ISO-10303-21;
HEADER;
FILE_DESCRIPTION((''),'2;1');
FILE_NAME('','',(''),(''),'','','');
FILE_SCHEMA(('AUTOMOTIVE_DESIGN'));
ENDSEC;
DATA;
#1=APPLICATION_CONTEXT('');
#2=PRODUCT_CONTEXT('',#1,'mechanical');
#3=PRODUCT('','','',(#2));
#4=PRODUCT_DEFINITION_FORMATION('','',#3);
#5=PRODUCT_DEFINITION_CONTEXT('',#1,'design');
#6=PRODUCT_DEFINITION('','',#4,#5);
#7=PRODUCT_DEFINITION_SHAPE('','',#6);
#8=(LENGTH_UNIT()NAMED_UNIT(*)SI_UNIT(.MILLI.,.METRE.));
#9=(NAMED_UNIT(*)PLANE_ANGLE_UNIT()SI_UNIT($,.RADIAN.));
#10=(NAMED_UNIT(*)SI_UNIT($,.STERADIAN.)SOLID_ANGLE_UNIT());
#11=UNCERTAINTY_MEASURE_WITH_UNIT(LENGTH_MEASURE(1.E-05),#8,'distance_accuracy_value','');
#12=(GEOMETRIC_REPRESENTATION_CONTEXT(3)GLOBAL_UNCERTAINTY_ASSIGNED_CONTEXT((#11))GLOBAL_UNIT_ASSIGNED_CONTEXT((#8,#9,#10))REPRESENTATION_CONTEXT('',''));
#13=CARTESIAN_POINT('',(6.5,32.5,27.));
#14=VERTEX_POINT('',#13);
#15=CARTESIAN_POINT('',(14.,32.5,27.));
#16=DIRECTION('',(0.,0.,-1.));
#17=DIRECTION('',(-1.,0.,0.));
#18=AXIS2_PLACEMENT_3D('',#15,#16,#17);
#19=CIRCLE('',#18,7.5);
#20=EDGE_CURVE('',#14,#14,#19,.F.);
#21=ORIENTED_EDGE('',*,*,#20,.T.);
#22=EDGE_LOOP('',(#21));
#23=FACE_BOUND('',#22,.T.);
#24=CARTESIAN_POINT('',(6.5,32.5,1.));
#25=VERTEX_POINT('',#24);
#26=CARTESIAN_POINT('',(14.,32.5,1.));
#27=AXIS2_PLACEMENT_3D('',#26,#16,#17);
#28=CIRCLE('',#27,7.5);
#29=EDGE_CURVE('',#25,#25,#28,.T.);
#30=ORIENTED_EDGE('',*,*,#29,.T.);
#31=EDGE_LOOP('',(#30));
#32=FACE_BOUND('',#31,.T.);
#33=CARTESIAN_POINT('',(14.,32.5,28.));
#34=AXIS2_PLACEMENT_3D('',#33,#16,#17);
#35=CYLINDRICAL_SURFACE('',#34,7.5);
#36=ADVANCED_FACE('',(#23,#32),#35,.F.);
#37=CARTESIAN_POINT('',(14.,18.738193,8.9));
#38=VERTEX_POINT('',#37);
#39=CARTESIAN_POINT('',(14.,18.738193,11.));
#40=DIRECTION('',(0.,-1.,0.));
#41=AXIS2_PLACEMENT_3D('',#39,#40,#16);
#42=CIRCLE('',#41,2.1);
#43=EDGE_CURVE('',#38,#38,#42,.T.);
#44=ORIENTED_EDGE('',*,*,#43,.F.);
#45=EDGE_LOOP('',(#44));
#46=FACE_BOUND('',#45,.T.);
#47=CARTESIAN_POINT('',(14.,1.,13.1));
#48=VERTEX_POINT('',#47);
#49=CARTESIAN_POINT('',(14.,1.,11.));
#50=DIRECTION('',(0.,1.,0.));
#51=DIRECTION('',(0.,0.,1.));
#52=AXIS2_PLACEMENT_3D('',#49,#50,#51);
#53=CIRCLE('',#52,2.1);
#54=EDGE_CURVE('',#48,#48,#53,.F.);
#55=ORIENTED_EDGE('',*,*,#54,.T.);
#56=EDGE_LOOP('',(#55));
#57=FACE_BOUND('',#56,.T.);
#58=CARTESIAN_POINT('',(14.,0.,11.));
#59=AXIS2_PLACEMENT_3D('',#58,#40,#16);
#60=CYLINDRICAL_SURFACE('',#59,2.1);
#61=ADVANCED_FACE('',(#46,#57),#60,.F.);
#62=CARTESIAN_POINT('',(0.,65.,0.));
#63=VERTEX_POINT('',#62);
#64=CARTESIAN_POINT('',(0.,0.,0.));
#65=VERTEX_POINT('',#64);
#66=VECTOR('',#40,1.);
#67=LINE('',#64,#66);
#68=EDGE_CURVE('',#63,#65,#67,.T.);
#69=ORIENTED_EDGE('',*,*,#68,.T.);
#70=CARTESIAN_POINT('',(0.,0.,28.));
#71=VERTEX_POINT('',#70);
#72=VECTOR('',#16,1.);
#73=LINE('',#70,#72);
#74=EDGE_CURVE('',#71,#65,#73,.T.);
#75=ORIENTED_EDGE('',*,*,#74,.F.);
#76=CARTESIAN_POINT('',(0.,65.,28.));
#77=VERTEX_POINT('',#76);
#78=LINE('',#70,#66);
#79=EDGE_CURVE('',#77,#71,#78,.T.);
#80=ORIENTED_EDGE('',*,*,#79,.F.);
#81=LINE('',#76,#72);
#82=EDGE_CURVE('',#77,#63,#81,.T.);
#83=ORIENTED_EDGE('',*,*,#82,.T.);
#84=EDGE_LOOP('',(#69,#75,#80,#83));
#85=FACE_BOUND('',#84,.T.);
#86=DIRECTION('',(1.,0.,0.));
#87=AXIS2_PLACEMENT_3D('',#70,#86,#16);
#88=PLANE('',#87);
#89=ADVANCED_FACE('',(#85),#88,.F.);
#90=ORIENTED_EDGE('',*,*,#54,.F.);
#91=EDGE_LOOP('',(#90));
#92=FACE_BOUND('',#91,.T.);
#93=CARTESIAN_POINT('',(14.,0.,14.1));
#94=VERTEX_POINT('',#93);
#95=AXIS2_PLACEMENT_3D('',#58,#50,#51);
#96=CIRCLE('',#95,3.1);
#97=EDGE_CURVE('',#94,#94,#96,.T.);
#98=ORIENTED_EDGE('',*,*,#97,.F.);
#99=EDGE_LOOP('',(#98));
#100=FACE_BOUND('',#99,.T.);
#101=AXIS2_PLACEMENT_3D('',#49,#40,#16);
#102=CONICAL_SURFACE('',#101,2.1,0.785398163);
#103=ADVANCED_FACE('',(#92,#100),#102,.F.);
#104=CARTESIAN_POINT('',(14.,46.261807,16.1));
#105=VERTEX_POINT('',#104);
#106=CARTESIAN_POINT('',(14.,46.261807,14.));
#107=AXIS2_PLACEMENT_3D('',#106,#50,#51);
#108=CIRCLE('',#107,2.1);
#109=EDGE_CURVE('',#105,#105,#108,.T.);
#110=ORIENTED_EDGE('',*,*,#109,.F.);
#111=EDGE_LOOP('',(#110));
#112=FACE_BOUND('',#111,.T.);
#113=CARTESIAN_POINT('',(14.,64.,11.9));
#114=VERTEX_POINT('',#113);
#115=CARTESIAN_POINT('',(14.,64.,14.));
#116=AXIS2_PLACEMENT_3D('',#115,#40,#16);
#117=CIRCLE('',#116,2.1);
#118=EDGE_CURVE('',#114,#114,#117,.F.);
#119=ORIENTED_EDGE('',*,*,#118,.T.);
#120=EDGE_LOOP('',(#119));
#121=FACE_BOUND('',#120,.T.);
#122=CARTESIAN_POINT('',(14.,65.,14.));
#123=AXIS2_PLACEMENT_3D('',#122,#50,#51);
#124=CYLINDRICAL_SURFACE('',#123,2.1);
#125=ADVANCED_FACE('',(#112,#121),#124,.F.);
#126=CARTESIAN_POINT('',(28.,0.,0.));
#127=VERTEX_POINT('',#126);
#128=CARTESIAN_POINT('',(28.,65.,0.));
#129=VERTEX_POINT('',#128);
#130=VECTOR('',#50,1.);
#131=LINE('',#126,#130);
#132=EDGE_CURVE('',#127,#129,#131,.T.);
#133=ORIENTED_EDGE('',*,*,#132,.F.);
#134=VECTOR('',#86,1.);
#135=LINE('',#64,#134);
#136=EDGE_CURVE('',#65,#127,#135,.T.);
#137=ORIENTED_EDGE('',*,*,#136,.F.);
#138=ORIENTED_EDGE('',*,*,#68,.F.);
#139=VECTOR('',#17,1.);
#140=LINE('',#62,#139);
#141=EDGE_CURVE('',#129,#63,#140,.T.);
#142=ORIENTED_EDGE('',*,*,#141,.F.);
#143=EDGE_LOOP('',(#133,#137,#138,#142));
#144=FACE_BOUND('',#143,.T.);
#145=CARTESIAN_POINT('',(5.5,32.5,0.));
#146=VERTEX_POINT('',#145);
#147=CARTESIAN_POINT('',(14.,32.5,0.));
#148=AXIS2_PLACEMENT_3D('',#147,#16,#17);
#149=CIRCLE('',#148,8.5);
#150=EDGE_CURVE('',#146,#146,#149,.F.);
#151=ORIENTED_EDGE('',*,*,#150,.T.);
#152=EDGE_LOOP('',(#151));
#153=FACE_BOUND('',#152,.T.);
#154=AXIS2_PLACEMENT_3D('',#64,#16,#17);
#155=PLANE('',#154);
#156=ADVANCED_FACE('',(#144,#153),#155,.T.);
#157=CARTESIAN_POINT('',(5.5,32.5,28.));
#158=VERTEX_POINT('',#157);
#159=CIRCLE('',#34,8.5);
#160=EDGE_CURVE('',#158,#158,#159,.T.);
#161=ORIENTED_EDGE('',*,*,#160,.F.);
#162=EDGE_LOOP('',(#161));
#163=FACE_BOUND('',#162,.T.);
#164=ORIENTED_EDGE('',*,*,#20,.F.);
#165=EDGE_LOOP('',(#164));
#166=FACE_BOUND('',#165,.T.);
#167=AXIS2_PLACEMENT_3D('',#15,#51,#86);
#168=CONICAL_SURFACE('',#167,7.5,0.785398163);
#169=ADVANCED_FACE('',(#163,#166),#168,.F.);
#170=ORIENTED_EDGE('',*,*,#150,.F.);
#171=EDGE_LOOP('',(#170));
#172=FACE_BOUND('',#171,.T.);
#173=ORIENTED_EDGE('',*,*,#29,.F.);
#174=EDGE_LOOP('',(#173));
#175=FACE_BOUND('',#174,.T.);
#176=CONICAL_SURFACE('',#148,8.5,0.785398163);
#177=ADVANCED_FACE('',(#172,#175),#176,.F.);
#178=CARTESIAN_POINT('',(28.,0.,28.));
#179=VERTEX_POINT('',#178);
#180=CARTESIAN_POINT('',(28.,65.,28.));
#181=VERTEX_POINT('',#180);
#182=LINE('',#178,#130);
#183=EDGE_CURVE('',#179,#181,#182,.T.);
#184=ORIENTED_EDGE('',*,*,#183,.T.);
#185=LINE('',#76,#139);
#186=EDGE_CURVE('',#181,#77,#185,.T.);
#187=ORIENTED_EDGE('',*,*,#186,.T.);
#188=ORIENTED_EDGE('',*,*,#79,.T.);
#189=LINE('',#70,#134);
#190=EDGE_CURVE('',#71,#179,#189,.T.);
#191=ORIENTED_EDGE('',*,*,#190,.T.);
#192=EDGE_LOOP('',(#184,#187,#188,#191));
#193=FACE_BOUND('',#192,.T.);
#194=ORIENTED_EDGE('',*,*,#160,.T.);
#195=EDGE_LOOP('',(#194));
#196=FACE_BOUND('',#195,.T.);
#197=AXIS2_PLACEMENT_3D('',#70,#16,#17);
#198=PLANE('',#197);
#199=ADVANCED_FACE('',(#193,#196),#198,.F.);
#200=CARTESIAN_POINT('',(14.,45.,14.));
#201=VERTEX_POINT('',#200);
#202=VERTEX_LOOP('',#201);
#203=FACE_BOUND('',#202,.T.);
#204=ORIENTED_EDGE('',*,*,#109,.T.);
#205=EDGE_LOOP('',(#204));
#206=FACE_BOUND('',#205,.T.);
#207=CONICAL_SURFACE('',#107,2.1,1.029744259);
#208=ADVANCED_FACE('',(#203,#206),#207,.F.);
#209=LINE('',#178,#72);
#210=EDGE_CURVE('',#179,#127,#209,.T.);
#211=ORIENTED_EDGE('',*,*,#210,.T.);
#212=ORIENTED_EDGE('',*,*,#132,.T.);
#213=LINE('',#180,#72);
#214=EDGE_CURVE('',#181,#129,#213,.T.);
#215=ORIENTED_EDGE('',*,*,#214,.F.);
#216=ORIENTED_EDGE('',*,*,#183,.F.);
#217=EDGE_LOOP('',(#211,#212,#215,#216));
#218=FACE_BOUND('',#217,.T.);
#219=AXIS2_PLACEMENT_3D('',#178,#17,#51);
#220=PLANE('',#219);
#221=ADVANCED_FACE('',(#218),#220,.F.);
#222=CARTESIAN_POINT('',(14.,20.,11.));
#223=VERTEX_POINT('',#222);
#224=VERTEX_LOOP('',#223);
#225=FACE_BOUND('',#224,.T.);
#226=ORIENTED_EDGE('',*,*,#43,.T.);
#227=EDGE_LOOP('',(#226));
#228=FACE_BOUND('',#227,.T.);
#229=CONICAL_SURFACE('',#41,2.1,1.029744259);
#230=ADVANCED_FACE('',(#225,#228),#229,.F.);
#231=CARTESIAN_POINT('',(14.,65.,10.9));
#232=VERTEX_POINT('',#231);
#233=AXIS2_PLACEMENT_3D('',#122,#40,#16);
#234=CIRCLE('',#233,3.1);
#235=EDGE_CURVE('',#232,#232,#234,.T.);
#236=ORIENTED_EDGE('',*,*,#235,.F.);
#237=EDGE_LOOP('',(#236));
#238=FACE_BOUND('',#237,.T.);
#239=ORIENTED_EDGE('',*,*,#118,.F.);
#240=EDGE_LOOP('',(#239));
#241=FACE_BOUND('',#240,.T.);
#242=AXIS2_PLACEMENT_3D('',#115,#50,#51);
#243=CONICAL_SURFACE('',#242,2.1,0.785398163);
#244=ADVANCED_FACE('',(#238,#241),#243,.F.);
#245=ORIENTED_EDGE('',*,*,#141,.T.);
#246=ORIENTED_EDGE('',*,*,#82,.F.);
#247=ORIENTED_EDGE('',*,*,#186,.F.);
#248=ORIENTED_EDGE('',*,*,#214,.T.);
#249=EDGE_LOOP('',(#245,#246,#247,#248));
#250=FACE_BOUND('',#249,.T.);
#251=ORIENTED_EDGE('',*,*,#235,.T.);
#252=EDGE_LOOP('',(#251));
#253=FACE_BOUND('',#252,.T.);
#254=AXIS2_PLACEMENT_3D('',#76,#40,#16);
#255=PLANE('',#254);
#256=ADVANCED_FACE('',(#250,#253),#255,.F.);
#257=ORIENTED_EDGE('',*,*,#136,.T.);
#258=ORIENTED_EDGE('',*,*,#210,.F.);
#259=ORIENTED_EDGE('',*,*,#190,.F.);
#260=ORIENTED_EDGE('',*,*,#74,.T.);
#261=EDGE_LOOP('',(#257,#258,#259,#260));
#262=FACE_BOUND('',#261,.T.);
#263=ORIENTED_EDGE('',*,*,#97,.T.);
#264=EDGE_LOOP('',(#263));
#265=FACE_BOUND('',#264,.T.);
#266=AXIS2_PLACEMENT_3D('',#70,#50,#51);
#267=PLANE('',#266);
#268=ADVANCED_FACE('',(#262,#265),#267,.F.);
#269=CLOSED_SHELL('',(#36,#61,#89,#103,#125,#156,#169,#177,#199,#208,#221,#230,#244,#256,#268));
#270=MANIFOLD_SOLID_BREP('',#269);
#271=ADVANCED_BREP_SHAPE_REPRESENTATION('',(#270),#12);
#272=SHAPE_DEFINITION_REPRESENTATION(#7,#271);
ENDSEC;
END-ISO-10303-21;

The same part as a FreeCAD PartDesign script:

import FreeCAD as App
import Part
import Sketcher

V = App.Vector


def edges_at(feature, points):
    """Names of the edges that pass closest to the given points."""
    edges = feature.Shape.Edges
    near = lambda p: min(range(len(edges)), key=lambda i: edges[i].distToShape(Part.Vertex(*p))[0])
    return sorted({f"Edge{near(p) + 1}" for p in points})

doc = App.newDocument("Part")
params = doc.addObject("Spreadsheet::Sheet", "Params")
for row, (alias, value) in enumerate([
    ("sketch1_diameter", "15 mm"),
    ("sketch1_width", "28 mm"),
    ("sketch1_height", "65 mm"),
    ("pad1_length", "28 mm"),
    ("sketch2_diameter", "4.2 mm"),
    ("hole_diameter", "4.2 mm"),
    ("hole_depth", "18.738193 mm"),
    ("sketch3_diameter", "4.2 mm"),
    ("hole2_diameter", "4.2 mm"),
    ("hole2_depth", "18.738193 mm"),
    ("chamfer_size", "1 mm"),
], start=1):
    params.set(f"A{row}", alias)
    params.set(f"B{row}", "=" + value)
    params.setAlias(f"B{row}", alias)

body = doc.addObject("PartDesign::Body", "Body")

# Sketch on XY plane
sketch1 = body.newObject("Sketcher::SketchObject", "Sketch")
sketch1.AttachmentSupport = (doc.getObject("XY_Plane"), [""])
sketch1.MapMode = "FlatFace"
sketch1.addGeometry([
    Part.LineSegment(V(0, 65, 0), V(0, 0, 0)),  # 0
    Part.LineSegment(V(0, 0, 0), V(28, 0, 0)),  # 1
    Part.LineSegment(V(28, 0, 0), V(28, 65, 0)),  # 2
    Part.LineSegment(V(28, 65, 0), V(0, 65, 0)),  # 3
    Part.Circle(V(14, 32, 0), V(0, 0, 1), 8),  # 4
], False)
sketch1.addConstraint([
    Sketcher.Constraint("Coincident", 0, 2, 1, 1),
    Sketcher.Constraint("Coincident", 1, 2, 2, 1),
    Sketcher.Constraint("Coincident", 2, 2, 3, 1),
    Sketcher.Constraint("Coincident", 3, 2, 0, 1),
    Sketcher.Constraint("Vertical", 0),
    Sketcher.Constraint("Horizontal", 1),
    Sketcher.Constraint("Vertical", 2),
    Sketcher.Constraint("Horizontal", 3),
    Sketcher.Constraint("Coincident", 0, 2, -1, 1),
    Sketcher.Constraint("Diameter", 4, 15.0),
    Sketcher.Constraint("DistanceX", 1, 1, 1, 2, 28.0),
    Sketcher.Constraint("DistanceY", 0, 2, 0, 1, 65.0),
    Sketcher.Constraint("DistanceX", -1, 1, 4, 3, 14.0),
    Sketcher.Constraint("DistanceY", -1, 1, 4, 3, 32.5),
])
sketch1.setExpression("Constraints[9]", "Params.sketch1_diameter")
sketch1.setExpression("Constraints[10]", "Params.sketch1_width")
sketch1.setExpression("Constraints[11]", "Params.sketch1_height")
pad1 = body.newObject("PartDesign::Pad", "Pad")
pad1.Profile = sketch1
pad1.setExpression("Length", "Params.pad1_length")

# Sketch on XZ plane
sketch2 = body.newObject("Sketcher::SketchObject", "Sketch001")
sketch2.AttachmentSupport = (doc.getObject("XZ_Plane"), [""])
sketch2.MapMode = "FlatFace"
sketch2.addGeometry(Part.Circle(V(14, 11, 0), V(0, 0, 1), 2.1), False)
sketch2.addConstraint([
    Sketcher.Constraint("Diameter", 0, 4.2),
    Sketcher.Constraint("DistanceX", -1, 1, 0, 3, 14.0),
    Sketcher.Constraint("DistanceY", -1, 1, 0, 3, 11.0),
])
sketch2.setExpression("Constraints[0]", "Params.sketch2_diameter")
doc.recompute()
hole = body.newObject("PartDesign::Hole", "Hole")
hole.Profile = sketch2
hole.ThreadType = "None"
hole.setExpression("Diameter", "Params.hole_diameter")
hole.DepthType = "Dimension"
hole.setExpression("Depth", "Params.hole_depth")
hole.DrillPoint = "Angled"
hole.DrillPointAngle = 118

# Sketch on XZ plane
sketch3 = body.newObject("Sketcher::SketchObject", "Sketch002")
sketch3.AttachmentSupport = (doc.getObject("XZ_Plane"), [""])
sketch3.MapMode = "FlatFace"
sketch3.AttachmentOffset = App.Placement(V(0, 0, -65), App.Rotation())
sketch3.addGeometry(Part.Circle(V(14, 14, 0), V(0, 0, 1), 2.1), False)
sketch3.addConstraint([
    Sketcher.Constraint("Diameter", 0, 4.2),
    Sketcher.Constraint("DistanceX", -1, 1, 0, 3, 14.0),
    Sketcher.Constraint("DistanceY", -1, 1, 0, 3, 14.0),
])
sketch3.setExpression("Constraints[0]", "Params.sketch3_diameter")
doc.recompute()
hole2 = body.newObject("PartDesign::Hole", "Hole001")
hole2.Profile = sketch3
hole2.ThreadType = "None"
hole2.setExpression("Diameter", "Params.hole2_diameter")
hole2.DepthType = "Dimension"
hole2.setExpression("Depth", "Params.hole2_depth")
hole2.DrillPoint = "Angled"
hole2.DrillPointAngle = 118
hole2.Reversed = True
doc.recompute()

chamfer = body.newObject("PartDesign::Chamfer", "Chamfer")
chamfer.Base = (hole2, edges_at(hole2, [
    (6.5, 32.5, 0),
    (6.5, 32.5, 28),
    (11.9, 0, 11),
    (16.1, 65, 14),
]))
chamfer.setExpression("Size", "Params.chamfer_size")

doc.recompute()
